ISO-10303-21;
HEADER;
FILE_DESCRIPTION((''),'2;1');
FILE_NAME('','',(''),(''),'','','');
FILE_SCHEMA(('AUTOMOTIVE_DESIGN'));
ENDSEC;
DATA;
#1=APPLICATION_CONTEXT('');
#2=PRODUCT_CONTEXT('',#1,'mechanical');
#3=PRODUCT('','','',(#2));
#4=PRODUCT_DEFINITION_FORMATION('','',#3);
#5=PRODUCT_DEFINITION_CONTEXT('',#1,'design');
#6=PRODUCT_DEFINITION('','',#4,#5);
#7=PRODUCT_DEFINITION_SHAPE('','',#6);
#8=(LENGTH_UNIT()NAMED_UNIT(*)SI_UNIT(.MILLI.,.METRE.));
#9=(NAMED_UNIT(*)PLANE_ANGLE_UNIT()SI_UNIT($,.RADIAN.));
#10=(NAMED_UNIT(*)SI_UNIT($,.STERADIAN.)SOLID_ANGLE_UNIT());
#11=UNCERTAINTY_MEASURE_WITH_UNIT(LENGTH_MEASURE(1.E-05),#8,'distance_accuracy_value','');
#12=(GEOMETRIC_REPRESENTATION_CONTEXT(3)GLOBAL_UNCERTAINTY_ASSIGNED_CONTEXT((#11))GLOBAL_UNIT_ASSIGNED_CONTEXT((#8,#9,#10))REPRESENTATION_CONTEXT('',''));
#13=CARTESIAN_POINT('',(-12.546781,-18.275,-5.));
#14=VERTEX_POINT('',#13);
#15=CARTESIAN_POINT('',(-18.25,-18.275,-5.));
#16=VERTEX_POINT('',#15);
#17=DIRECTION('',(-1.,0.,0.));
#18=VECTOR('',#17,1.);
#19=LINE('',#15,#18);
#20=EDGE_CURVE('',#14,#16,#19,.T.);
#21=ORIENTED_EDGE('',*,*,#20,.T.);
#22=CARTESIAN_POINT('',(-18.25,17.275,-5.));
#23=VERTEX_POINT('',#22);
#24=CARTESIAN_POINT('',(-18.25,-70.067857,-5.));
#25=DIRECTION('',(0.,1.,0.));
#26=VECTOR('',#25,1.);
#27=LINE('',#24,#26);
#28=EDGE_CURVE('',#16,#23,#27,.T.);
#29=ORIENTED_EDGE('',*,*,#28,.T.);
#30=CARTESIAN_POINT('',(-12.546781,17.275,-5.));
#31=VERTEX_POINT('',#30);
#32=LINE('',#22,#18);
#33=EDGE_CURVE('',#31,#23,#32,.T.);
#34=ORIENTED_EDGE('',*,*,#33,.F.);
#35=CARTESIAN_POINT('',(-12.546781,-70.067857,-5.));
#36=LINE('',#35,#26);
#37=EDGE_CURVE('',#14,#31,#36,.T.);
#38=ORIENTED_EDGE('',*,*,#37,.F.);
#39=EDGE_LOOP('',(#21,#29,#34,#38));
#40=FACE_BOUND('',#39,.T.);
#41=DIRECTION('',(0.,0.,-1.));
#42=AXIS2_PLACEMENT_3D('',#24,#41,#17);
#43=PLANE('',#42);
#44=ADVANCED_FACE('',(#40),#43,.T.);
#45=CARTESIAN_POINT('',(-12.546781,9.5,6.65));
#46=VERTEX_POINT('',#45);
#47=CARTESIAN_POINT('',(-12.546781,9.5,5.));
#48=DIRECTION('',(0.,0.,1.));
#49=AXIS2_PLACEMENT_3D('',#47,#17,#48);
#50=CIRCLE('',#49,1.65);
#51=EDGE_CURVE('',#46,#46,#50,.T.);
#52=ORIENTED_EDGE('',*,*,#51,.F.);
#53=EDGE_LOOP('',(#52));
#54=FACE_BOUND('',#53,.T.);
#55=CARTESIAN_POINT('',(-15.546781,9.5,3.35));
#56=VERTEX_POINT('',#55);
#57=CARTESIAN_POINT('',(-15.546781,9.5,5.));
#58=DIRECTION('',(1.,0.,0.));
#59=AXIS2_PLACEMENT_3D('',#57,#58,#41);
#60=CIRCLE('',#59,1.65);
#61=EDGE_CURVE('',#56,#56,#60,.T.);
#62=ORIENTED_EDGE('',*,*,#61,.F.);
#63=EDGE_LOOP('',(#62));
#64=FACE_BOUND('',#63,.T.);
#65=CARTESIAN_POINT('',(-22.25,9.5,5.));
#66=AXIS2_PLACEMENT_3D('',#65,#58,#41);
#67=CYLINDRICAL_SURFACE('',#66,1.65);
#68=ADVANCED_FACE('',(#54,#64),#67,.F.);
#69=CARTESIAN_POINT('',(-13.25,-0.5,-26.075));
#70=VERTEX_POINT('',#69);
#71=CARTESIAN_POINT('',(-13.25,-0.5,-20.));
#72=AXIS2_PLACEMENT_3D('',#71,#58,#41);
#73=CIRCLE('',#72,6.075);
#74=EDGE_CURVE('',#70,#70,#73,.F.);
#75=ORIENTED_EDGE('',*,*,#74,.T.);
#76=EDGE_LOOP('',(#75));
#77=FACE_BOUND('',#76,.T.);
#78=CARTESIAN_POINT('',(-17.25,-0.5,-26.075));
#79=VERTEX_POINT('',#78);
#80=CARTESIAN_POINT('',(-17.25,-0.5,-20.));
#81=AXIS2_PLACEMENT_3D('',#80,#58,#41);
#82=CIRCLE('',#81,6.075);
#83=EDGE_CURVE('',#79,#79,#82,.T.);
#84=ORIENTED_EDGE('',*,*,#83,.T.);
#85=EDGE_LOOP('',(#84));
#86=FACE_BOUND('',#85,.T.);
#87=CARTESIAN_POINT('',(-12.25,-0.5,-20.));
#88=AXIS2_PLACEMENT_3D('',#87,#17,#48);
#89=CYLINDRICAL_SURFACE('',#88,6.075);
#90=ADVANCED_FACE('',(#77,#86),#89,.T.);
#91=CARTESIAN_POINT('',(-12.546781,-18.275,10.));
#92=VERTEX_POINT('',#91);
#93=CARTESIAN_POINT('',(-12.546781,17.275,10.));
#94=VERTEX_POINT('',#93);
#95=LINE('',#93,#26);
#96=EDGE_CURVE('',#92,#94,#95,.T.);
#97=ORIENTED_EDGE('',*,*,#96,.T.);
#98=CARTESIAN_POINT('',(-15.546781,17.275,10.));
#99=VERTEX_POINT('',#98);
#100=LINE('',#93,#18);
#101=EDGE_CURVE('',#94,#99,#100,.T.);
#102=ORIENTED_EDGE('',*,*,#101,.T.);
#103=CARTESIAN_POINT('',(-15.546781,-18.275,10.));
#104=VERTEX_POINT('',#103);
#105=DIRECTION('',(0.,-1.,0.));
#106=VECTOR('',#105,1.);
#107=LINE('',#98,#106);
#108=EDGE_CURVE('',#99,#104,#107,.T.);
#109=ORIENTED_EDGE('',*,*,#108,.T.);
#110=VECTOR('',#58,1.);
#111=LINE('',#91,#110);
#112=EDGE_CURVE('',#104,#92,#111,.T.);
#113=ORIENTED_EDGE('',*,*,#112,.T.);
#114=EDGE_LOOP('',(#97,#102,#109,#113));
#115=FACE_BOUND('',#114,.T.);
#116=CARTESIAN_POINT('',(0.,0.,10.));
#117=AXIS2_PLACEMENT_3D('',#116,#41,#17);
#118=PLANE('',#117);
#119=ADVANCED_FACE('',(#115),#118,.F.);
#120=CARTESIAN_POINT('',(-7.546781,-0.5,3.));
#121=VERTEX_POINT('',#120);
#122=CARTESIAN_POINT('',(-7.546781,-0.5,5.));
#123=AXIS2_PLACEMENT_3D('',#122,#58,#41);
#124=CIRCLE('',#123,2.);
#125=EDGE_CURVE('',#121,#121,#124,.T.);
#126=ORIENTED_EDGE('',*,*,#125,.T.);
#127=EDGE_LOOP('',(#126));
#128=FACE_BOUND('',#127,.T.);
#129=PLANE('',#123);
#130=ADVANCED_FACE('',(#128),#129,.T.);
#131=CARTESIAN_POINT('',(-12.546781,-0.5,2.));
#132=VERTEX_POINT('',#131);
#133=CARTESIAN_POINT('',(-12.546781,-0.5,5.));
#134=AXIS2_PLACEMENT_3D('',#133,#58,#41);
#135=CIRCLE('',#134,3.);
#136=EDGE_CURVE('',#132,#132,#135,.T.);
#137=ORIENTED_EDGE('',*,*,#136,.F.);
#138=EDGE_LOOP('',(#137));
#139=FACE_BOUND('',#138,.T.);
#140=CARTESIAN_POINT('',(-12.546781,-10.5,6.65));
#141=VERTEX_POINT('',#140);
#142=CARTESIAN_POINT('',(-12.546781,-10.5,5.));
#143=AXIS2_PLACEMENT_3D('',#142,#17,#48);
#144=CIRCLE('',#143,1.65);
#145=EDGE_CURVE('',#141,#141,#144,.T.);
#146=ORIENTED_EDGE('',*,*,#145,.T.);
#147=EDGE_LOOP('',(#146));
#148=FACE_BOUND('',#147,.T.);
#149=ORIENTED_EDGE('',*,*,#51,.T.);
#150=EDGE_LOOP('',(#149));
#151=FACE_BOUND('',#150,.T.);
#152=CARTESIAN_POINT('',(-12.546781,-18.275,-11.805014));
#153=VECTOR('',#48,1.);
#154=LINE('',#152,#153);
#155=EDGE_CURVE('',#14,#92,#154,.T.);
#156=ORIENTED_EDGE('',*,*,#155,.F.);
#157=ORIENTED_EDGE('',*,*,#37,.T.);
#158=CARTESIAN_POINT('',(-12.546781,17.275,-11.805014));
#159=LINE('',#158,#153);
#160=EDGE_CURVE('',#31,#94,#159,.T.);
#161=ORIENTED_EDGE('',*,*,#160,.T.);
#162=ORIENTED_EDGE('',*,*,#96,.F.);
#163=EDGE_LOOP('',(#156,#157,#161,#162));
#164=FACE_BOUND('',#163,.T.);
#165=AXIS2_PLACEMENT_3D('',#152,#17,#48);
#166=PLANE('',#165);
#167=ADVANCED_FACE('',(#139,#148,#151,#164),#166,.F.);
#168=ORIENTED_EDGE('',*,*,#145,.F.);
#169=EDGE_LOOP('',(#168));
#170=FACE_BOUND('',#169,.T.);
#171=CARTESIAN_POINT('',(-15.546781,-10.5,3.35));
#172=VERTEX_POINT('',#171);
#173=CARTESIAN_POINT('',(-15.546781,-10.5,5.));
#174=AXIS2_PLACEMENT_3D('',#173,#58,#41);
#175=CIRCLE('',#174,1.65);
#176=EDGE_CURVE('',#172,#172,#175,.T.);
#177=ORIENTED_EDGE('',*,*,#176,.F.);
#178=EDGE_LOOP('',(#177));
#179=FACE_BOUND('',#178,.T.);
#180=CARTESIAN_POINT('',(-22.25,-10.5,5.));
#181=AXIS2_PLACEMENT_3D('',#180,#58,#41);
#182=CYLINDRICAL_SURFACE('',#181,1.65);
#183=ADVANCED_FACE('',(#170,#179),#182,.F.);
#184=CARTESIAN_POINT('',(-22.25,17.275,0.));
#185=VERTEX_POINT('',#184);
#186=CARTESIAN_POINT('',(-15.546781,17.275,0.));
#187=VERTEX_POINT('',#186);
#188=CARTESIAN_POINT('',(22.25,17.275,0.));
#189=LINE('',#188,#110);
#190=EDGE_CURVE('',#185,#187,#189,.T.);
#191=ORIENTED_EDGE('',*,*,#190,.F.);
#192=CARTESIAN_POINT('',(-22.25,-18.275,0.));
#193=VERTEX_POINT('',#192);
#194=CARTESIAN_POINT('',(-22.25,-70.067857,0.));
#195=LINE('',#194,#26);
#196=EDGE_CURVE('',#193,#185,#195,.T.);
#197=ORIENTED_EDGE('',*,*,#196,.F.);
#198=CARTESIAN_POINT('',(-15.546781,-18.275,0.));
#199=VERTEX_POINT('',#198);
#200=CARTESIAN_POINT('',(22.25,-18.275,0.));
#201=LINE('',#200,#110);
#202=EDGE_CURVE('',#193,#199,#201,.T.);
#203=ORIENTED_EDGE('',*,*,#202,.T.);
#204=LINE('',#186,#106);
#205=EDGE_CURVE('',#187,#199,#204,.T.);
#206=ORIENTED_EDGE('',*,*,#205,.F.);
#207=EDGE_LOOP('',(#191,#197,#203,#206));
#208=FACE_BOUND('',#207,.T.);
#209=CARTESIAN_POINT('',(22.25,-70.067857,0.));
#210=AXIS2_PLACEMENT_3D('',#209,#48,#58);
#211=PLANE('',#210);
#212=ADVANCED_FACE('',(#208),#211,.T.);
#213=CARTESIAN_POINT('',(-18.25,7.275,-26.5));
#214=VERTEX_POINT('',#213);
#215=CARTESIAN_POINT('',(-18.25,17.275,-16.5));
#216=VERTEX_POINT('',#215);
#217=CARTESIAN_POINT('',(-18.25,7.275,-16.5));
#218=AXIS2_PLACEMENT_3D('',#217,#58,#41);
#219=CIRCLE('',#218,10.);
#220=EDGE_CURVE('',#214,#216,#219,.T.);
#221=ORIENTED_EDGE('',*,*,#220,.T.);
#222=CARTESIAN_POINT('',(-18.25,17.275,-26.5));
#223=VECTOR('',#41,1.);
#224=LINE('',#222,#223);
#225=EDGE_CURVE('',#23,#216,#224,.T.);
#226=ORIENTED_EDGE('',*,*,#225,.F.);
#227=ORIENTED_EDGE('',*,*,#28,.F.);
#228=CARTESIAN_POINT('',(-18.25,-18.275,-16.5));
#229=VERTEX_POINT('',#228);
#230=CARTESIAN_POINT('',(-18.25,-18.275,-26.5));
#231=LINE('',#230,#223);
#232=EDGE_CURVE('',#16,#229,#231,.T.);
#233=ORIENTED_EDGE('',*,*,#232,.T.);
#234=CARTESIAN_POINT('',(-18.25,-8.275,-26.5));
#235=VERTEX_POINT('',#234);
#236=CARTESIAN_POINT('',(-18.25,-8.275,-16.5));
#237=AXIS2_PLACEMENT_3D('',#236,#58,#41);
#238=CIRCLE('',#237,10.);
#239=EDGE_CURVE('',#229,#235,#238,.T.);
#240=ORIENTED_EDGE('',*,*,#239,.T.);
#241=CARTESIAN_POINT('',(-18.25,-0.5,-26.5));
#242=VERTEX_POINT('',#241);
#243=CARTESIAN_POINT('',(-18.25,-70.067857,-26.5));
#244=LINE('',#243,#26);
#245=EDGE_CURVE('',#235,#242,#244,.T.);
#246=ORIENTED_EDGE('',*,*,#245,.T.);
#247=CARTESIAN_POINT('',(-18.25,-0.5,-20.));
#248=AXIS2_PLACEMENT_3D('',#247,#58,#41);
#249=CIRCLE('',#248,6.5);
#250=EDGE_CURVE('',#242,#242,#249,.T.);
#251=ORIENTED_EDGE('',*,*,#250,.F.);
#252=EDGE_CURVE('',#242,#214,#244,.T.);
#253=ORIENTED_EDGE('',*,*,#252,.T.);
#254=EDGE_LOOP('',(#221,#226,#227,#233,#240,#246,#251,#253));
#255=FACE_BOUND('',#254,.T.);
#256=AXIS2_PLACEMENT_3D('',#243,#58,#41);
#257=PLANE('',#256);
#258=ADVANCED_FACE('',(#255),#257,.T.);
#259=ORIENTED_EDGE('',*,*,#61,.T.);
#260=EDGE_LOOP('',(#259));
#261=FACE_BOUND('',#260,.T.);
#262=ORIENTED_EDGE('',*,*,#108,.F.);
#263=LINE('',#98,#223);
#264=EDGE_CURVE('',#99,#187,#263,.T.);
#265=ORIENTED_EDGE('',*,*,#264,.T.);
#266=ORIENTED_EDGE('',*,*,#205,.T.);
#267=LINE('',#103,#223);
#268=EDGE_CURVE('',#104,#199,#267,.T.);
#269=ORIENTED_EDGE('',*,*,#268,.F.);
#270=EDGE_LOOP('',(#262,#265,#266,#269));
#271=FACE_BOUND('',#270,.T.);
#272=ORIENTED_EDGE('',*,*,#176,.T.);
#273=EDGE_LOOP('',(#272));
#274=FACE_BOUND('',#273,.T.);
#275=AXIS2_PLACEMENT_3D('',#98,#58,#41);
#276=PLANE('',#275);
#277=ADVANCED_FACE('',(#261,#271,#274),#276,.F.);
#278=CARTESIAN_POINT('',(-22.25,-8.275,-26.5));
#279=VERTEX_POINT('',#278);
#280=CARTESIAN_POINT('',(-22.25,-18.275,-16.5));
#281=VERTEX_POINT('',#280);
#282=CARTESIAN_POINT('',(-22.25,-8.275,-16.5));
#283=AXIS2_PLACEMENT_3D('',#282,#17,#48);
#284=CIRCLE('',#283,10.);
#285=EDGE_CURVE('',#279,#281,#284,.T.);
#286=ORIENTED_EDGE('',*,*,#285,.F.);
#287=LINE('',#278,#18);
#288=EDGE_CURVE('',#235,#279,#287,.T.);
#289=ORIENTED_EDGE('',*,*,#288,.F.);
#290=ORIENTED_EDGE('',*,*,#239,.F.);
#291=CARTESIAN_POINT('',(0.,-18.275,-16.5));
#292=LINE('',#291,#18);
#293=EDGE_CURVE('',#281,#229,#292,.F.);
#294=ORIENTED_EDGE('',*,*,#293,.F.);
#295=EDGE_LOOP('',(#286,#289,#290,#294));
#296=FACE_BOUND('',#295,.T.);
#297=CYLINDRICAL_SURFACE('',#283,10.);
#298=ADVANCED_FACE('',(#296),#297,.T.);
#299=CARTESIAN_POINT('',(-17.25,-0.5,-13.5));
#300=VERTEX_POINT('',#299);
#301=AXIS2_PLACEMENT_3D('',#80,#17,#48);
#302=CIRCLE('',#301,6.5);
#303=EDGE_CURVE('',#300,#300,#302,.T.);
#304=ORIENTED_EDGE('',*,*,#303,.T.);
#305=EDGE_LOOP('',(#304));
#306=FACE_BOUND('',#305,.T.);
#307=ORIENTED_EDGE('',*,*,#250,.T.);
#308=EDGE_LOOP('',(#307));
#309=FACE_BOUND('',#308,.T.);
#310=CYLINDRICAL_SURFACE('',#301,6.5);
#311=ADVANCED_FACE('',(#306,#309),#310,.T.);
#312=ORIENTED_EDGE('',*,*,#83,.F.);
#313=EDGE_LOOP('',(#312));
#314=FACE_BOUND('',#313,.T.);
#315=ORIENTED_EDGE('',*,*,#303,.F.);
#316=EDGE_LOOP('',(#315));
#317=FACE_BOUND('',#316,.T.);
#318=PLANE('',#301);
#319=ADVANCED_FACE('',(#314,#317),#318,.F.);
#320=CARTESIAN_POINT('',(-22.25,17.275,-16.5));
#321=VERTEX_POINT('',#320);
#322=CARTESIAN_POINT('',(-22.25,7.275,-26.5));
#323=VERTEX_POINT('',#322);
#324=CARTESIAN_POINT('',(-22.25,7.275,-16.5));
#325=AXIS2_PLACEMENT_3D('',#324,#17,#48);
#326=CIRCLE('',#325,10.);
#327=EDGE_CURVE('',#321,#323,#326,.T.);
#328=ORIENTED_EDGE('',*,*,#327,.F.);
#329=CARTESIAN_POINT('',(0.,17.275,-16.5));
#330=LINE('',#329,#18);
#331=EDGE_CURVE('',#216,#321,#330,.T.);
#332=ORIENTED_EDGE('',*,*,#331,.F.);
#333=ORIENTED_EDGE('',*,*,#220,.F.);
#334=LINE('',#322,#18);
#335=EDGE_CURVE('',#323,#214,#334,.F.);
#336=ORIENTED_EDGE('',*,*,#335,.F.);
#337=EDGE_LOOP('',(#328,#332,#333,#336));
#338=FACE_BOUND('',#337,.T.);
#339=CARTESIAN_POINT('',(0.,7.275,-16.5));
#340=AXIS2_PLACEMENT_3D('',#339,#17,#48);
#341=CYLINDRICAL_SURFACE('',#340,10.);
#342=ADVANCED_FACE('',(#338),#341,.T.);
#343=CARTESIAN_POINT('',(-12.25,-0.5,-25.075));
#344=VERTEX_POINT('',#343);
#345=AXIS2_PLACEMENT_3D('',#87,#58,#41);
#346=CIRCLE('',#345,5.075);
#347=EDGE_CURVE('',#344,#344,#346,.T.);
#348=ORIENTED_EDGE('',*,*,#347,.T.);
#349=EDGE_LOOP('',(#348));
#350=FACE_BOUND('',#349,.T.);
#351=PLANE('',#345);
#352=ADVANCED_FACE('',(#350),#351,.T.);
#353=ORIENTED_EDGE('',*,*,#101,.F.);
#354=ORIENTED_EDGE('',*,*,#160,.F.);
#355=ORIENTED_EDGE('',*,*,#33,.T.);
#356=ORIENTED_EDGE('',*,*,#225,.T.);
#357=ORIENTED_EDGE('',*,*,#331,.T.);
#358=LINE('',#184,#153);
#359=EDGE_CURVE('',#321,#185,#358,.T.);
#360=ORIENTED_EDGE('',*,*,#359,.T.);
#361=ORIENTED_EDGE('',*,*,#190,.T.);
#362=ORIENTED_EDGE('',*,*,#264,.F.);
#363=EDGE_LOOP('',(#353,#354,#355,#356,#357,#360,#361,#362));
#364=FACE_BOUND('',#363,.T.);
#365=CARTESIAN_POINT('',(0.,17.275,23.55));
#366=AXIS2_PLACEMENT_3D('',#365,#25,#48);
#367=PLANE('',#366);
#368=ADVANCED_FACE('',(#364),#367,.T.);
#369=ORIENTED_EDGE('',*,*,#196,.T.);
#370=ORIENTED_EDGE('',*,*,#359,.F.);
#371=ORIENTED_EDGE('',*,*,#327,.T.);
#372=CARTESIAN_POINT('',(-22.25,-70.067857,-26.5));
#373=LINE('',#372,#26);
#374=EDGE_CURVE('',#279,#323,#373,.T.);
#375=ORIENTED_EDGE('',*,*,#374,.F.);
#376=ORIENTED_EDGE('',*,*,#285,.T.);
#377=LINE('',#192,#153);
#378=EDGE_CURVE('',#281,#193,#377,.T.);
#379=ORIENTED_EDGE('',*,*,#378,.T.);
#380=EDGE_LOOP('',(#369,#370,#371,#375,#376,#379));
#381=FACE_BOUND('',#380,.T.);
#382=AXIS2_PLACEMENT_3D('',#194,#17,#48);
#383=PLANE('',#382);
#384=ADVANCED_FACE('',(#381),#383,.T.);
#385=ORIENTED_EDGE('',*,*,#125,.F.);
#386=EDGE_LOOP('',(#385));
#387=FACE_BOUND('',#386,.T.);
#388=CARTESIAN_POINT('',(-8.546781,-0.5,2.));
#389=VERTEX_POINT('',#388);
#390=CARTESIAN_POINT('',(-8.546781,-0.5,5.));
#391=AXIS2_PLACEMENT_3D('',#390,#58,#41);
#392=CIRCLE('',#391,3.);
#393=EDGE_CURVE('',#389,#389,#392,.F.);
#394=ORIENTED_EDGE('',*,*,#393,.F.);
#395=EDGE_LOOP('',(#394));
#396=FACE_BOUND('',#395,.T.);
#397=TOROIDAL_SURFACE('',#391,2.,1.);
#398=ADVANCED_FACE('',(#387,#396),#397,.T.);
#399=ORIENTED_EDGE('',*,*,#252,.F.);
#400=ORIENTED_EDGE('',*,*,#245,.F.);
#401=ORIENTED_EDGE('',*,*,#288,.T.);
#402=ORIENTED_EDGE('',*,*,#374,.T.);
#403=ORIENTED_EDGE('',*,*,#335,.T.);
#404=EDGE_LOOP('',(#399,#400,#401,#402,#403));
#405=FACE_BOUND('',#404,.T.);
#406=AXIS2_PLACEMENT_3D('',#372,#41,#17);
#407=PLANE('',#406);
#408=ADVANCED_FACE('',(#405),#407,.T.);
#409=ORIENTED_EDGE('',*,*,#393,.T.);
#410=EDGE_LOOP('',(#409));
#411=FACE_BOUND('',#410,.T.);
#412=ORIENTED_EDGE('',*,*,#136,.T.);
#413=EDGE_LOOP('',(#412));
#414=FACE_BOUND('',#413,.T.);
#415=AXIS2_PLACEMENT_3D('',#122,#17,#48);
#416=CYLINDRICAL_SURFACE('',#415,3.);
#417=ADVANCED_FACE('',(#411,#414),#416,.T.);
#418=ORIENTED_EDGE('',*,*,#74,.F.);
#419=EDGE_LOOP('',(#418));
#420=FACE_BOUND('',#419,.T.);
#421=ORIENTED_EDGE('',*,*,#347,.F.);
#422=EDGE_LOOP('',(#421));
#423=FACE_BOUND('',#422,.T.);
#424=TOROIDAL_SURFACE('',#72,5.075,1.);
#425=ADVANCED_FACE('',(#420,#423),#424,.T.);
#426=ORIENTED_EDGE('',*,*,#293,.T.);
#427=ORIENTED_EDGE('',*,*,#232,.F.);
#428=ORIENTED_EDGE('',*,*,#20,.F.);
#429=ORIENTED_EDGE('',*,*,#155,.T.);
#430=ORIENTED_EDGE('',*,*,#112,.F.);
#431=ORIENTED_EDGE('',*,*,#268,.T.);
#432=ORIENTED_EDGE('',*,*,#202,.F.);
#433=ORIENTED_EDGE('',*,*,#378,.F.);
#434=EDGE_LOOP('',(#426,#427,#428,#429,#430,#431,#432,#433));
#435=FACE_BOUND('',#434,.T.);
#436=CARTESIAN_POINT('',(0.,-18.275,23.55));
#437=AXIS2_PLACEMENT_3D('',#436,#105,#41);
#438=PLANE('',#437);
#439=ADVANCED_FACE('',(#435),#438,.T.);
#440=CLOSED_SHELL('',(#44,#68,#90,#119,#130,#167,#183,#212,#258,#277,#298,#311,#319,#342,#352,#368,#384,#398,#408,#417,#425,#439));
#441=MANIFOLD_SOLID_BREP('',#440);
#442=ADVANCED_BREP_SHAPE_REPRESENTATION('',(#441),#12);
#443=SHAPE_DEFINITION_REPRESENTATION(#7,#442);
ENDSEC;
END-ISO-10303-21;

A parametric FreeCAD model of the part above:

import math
import FreeCAD as App
import Part
import Sketcher
Q = App.Units.Quantity


def edges_at(feature, points):
    """Names of the edges that pass closest to the given points."""
    edges = feature.Shape.Edges
    near = lambda p: min(range(len(edges)), key=lambda i: edges[i].distToShape(Part.Vertex(*p))[0])
    return sorted({f"Edge{near(p) + 1}" for p in points})


def add_polygon(sketch, points):
    """Adds a closed chain of lines whose ends are joined by coincident constraints."""
    first, n = sketch.GeometryCount, len(points)
    for a, b in zip(points, points[1:] + points[:1]):
        sketch.addGeometry(Part.LineSegment(App.Vector(*a, 0), App.Vector(*b, 0)), False)
    for i in range(n):
        sketch.addConstraint(Sketcher.Constraint("Coincident", first + i, 2, first + (i + 1) % n, 1))

doc = App.newDocument("Part")
body = doc.addObject("PartDesign::Body", "Body")

# Sketch on XY plane
sketch1 = body.newObject("Sketcher::SketchObject", "Sketch")
sketch1.AttachmentSupport = (doc.getObject("XY_Plane"), [""])
sketch1.MapMode = "FlatFace"
add_polygon(sketch1, [(-6, 7), (-6, -10), (6, -10), (6, 7)])  # lines 0-3
sketch1.addConstraint([
    Sketcher.Constraint("Vertical", 0),
    Sketcher.Constraint("Horizontal", 1),
    Sketcher.Constraint("Vertical", 2),
    Sketcher.Constraint("Horizontal", 3),
    Sketcher.Constraint("DistanceX", 1, 1, 1, 2, Q("12.46 mm")),
    Sketcher.Constraint("DistanceY", 0, 2, 0, 1, Q("17.25 mm")),
    Sketcher.Constraint("DistanceX", 0, 2, -1, 1, Q("6.23 mm")),
    Sketcher.Constraint("DistanceY", 0, 2, -1, 1, Q("9.975 mm")),
])
pad1 = body.newObject("PartDesign::Pad", "Pad")
pad1.Profile = sketch1
pad1.Length = 6
body2 = doc.addObject("PartDesign::Body", "Body001")

# Sketch on XZ plane
sketch2 = body2.newObject("Sketcher::SketchObject", "Sketch001")
sketch2.AttachmentSupport = (doc.getObject("XZ_Plane001"), [""])
sketch2.MapMode = "FlatFace"
sketch2.AttachmentOffset = App.Placement(App.Vector(0, 0, 9.975), App.Rotation())
sketch2.addGeometry([
    Part.Circle(App.Vector(0, 24, 0), App.Vector(0, 0, 1), 13),
    Part.Circle(App.Vector(0, 24, 0), App.Vector(0, 0, 1), 11),
], False)
sketch2.addConstraint([
    Sketcher.Constraint("Coincident", 1, 3, 0, 3),
    Sketcher.Constraint("PointOnObject", 0, 3, -2),
    Sketcher.Constraint("Diameter", 1, Q("22.3 mm")),
    Sketcher.Constraint("DistanceY", -1, 1, 0, 3, Q("23.55 mm")),
    Sketcher.Constraint("Diameter", 0, Q("25.093562 mm")),
])
pad2 = body2.newObject("PartDesign::Pad", "Pad001")
pad2.Profile = sketch2
pad2.Type = "TwoLengths"
pad2.Length = 8.3
pad2.Length2 = 17.25
body.AllowCompound = True
doc.recompute()

boolean = body.newObject("PartDesign::Boolean", "Boolean")
boolean.Type = "Fuse"
boolean.addObjects([body2])

# Sketch on XZ plane
sketch3 = body.newObject("Sketcher::SketchObject", "Sketch002")
sketch3.AttachmentSupport = (doc.getObject("XZ_Plane"), [""])
sketch3.MapMode = "FlatFace"
sketch3.AttachmentOffset = App.Placement(App.Vector(0, 0, -7.275), App.Rotation())
sketch3.addGeometry([
    Part.LineSegment(App.Vector(13, 24, 0), App.Vector(13, 0, 0)),  # 0
    Part.LineSegment(App.Vector(13, 0, 0), App.Vector(6, 0, 0)),  # 1
    Part.LineSegment(App.Vector(6, 0, 0), App.Vector(6, 30, 0)),  # 2
    Part.LineSegment(App.Vector(6, 30, 0), App.Vector(-6, 30, 0)),  # 3
    Part.LineSegment(App.Vector(-6, 30, 0), App.Vector(-6, 0, 0)),  # 4
    Part.LineSegment(App.Vector(-6, 0, 0), App.Vector(-13, 0, 0)),  # 5
    Part.LineSegment(App.Vector(-13, 0, 0), App.Vector(-13, 24, 0)),  # 6
    Part.ArcOfCircle(Part.Circle(App.Vector(0, 24, 0), App.Vector(0, 0, 1), 13), math.radians(0), math.radians(180)),  # 7
], False)
sketch3.addConstraint([
    Sketcher.Constraint("Coincident", 0, 2, 1, 1),
    Sketcher.Constraint("Coincident", 1, 2, 2, 1),
    Sketcher.Constraint("Coincident", 2, 2, 3, 1),
    Sketcher.Constraint("Coincident", 3, 2, 4, 1),
    Sketcher.Constraint("Coincident", 4, 2, 5, 1),
    Sketcher.Constraint("Coincident", 5, 2, 6, 1),
    Sketcher.Constraint("Tangent", 6, 2, 7, 2),
    Sketcher.Constraint("Tangent", 7, 1, 0, 1),
    Sketcher.Constraint("Vertical", 0),
    Sketcher.Constraint("Horizontal", 1),
    Sketcher.Constraint("Vertical", 2),
    Sketcher.Constraint("Horizontal", 3),
    Sketcher.Constraint("Vertical", 4),
    Sketcher.Constraint("Horizontal", 5),
    Sketcher.Constraint("Vertical", 6),
    Sketcher.Constraint("Symmetric", 1, 2, 4, 2, -1, 1),
    Sketcher.Constraint("Symmetric", 0, 2, 5, 2, -2),
    Sketcher.Constraint("DistanceY", 2, 1, 2, 2, Q("29.7 mm")),
    Sketcher.Constraint("DistanceX", 3, 2, 3, 1, Q("12.46 mm")),
    Sketcher.Constraint("DistanceY", 0, 2, 0, 1, Q("23.55 mm")),
    Sketcher.Constraint("Radius", 7, Q("12.546781 mm")),
])
pad3 = body.newObject("PartDesign::Pad", "Pad002")
pad3.Profile = sketch3
pad3.Length = 17.25

# Sketch on XZ plane
sketch4 = body.newObject("Sketcher::SketchObject", "Sketch003")
sketch4.AttachmentSupport = (doc.getObject("XZ_Plane"), [""])
sketch4.MapMode = "FlatFace"
sketch4.AttachmentOffset = App.Placement(App.Vector(0, 0, -7.275), App.Rotation())
sketch4.addGeometry([
    Part.Circle(App.Vector(0, 3.6, 0), App.Vector(0, 0, 1), 0.8),
    Part.Circle(App.Vector(0, 32.1, 0), App.Vector(0, 0, 1), 0.8),
], False)
sketch4.addConstraint([
    Sketcher.Constraint("Equal", 0, 1),
    Sketcher.Constraint("PointOnObject", 0, 3, -2),
    Sketcher.Constraint("PointOnObject", 1, 3, -2),
    Sketcher.Constraint("Diameter", 0, Q("1.5 mm")),
    Sketcher.Constraint("DistanceY", -1, 1, 0, 3, Q("3.6 mm")),
    Sketcher.Constraint("DistanceY", -1, 1, 1, 3, Q("32.1 mm")),
])
pocket1 = body.newObject("PartDesign::Pocket", "Pocket")
pocket1.Profile = sketch4
pocket1.Length = 5
pocket1.Reversed = True
doc.recompute()

chamfer = body.newObject("PartDesign::Chamfer", "Chamfer")
chamfer.Base = (pocket1, edges_at(pocket1, [(-0.75, 7.275, 3.6), (-0.75, 7.275, 32.1)]))
chamfer.ChamferType = "Two distances"
chamfer.Size = 0.5
chamfer.Size2 = 0.866025

# Sketch on XZ plane
sketch5 = body.newObject("Sketcher::SketchObject", "Sketch004")
sketch5.AttachmentSupport = (doc.getObject("XZ_Plane"), [""])
sketch5.MapMode = "FlatFace"
sketch5.AttachmentOffset = App.Placement(App.Vector(0, 0, -7.275), App.Rotation())
add_polygon(sketch5, [(-6, 6), (-6, 30), (6, 30), (6, 6)])  # lines 0-3
sketch5.addConstraint([
    Sketcher.Constraint("Vertical", 0),
    Sketcher.Constraint("Horizontal", 1),
    Sketcher.Constraint("Vertical", 2),
    Sketcher.Constraint("Horizontal", 3),
    Sketcher.Constraint("DistanceY", 0, 1, 0, 2, Q("23.7 mm")),
    Sketcher.Constraint("DistanceY", -1, 1, 2, 2, Q("6 mm")),
    Sketcher.Constraint("DistanceX", 1, 1, 1, 2, Q("12.46 mm")),
    Sketcher.Constraint("DistanceX", 0, 2, -1, 1, Q("6.23 mm")),
])
pocket2 = body.newObject("PartDesign::Pocket", "Pocket001")
pocket2.Profile = sketch5
pocket2.Length = 17.25
pocket2.Reversed = True

# Sketch on XZ plane
sketch6 = body.newObject("Sketcher::SketchObject", "Sketch005")
sketch6.AttachmentSupport = (doc.getObject("XZ_Plane"), [""])
sketch6.MapMode = "FlatFace"
sketch6.AttachmentOffset = App.Placement(App.Vector(0, 0, 18.275), App.Rotation())
sketch6.addGeometry([
    Part.LineSegment(App.Vector(-13, 24, 0), App.Vector(-13, 0, 0)),
    Part.LineSegment(App.Vector(-13, 0, 0), App.Vector(13, 0, 0)),
    Part.LineSegment(App.Vector(13, 0, 0), App.Vector(13, 24, 0)),
    Part.ArcOfCircle(Part.Circle(App.Vector(0, 24, 0), App.Vector(0, 0, 1), 13), math.radians(180), math.radians(360)),
], False)
sketch6.addConstraint([
    Sketcher.Constraint("Coincident", 0, 2, 1, 1),
    Sketcher.Constraint("Coincident", 1, 2, 2, 1),
    Sketcher.Constraint("Tangent", 2, 2, 3, 2),
    Sketcher.Constraint("Tangent", 3, 1, 0, 1),
    Sketcher.Constraint("Vertical", 0),
    Sketcher.Constraint("Horizontal", 1),
    Sketcher.Constraint("Vertical", 2),
    Sketcher.Constraint("Symmetric", 0, 2, 1, 2, -1, 1),
    Sketcher.Constraint("DistanceY", 0, 2, 0, 1, Q("23.55 mm")),
    Sketcher.Constraint("Radius", 3, Q("12.546781 mm")),
])
pad4 = body.newObject("PartDesign::Pad", "Pad003")
pad4.Profile = sketch6
pad4.Length = 8.3
pad4.Reversed = True

# Sketch on XZ plane
sketch7 = body.newObject("Sketcher::SketchObject", "Sketch006")
sketch7.AttachmentSupport = (doc.getObject("XZ_Plane"), [""])
sketch7.MapMode = "FlatFace"
sketch7.AttachmentOffset = App.Placement(App.Vector(0, 0, -7.275), App.Rotation())
sketch7.addGeometry([
    Part.LineSegment(App.Vector(12.5, 0, 0), App.Vector(-12.5, 0, 0)),  # 0
    Part.LineSegment(App.Vector(-12.5, 0, 0), App.Vector(-12.5, 23.6, 0)),  # 1
    Part.ArcOfCircle(Part.Circle(App.Vector(0, 23.6, 0), App.Vector(0, 0, 1), 12.5), math.radians(0), math.radians(180)),  # 2
    Part.LineSegment(App.Vector(12.5, 23.6, 0), App.Vector(12.5, 0, 0)),  # 3
    Part.LineSegment(App.Vector(-6.2, 0.8, 0), App.Vector(6.2, 0.8, 0)),  # 4
    Part.LineSegment(App.Vector(6.2, 0.8, 0), App.Vector(6.2, 33, 0)),  # 5
    Part.ArcOfCircle(Part.Circle(App.Vector(4.7, 33, 0), App.Vector(0, 0, 1), 1.5), math.radians(0), math.radians(90)),  # 6
    Part.LineSegment(App.Vector(4.7, 34.5, 0), App.Vector(-4.7, 34.5, 0)),  # 7
    Part.ArcOfCircle(Part.Circle(App.Vector(-4.7, 33, 0), App.Vector(0, 0, 1), 1.5), math.radians(90), math.radians(180)),  # 8
    Part.LineSegment(App.Vector(-6.2, 33, 0), App.Vector(-6.2, 0.8, 0)),  # 9
], False)
sketch7.addConstraint([
    Sketcher.Constraint("Coincident", 0, 2, 1, 1),
    Sketcher.Constraint("Tangent", 1, 2, 2, 2),
    Sketcher.Constraint("Tangent", 2, 1, 3, 1),
    Sketcher.Constraint("Coincident", 3, 2, 0, 1),
    Sketcher.Constraint("Coincident", 4, 2, 5, 1),
    Sketcher.Constraint("Tangent", 5, 2, 6, 1),
    Sketcher.Constraint("Tangent", 6, 2, 7, 1),
    Sketcher.Constraint("Tangent", 7, 2, 8, 1),
    Sketcher.Constraint("Tangent", 8, 2, 9, 1),
    Sketcher.Constraint("Coincident", 9, 2, 4, 1),
    Sketcher.Constraint("Horizontal", 0),
    Sketcher.Constraint("Vertical", 1),
    Sketcher.Constraint("Vertical", 3),
    Sketcher.Constraint("Horizontal", 4),
    Sketcher.Constraint("Vertical", 5),
    Sketcher.Constraint("Horizontal", 7),
    Sketcher.Constraint("Vertical", 9),
    Sketcher.Constraint("Equal", 6, 8),
    Sketcher.Constraint("Symmetric", 0, 2, 3, 2, -1, 1),
    Sketcher.Constraint("Radius", 6, Q("1.5 mm")),
    Sketcher.Constraint("DistanceY", 5, 1, 5, 2, Q("32.2 mm")),
    Sketcher.Constraint("DistanceY", -1, 1, 6, 3, Q("33 mm")),
    Sketcher.Constraint("DistanceX", 4, 1, 4, 2, Q("12.46 mm")),
    Sketcher.Constraint("DistanceY", 1, 1, 1, 2, Q("23.55 mm")),
    Sketcher.Constraint("DistanceX", -1, 1, 6, 3, Q("4.73 mm")),
    Sketcher.Constraint("Radius", 2, Q("12.546781 mm")),
])
pad5 = body.newObject("PartDesign::Pad", "Pad004")
pad5.Profile = sketch7
pad5.Length = 10
pad5.Reversed = True

# Sketch on XZ plane
sketch8 = body.newObject("Sketcher::SketchObject", "Sketch007")
sketch8.AttachmentSupport = (doc.getObject("XZ_Plane"), [""])
sketch8.MapMode = "FlatFace"
sketch8.AttachmentOffset = App.Placement(App.Vector(0, 0, 18.275), App.Rotation())
sketch8.addGeometry([
    Part.Circle(App.Vector(0, 24, 0), App.Vector(0, 0, 1), 11),
    Part.Circle(App.Vector(0, 24, 0), App.Vector(0, 0, 1), 7),
], False)
sketch8.addConstraint([
    Sketcher.Constraint("Coincident", 1, 3, 0, 3),
    Sketcher.Constraint("PointOnObject", 0, 3, -2),
    Sketcher.Constraint("Diameter", 0, Q("22.3 mm")),
    Sketcher.Constraint("Diameter", 1, Q("14.3 mm")),
    Sketcher.Constraint("DistanceY", -1, 1, 0, 3, Q("23.55 mm")),
])
pad6 = body.newObject("PartDesign::Pad", "Pad005")
pad6.Profile = sketch8
pad6.Length = 8.3
pad6.Reversed = True

# Sketch on XZ plane
sketch9 = body.newObject("Sketcher::SketchObject", "Sketch008")
sketch9.AttachmentSupport = (doc.getObject("XZ_Plane"), [""])
sketch9.MapMode = "FlatFace"
sketch9.AttachmentOffset = App.Placement(App.Vector(0, 0, 18.275), App.Rotation())
sketch9.addGeometry([
    Part.Circle(App.Vector(0, 24, 0), App.Vector(0, 0, 1), 10),
    Part.Circle(App.Vector(0, 24, 0), App.Vector(0, 0, 1), 7),
], False)
sketch9.addConstraint([
    Sketcher.Constraint("Coincident", 1, 3, 0, 3),
    Sketcher.Constraint("PointOnObject", 0, 3, -2),
    Sketcher.Constraint("Diameter", 0, Q("20.3 mm")),
    Sketcher.Constraint("Diameter", 1, Q("14.3 mm")),
    Sketcher.Constraint("DistanceY", -1, 1, 0, 3, Q("23.55 mm")),
])
pocket3 = body.newObject("PartDesign::Pocket", "Pocket002")
pocket3.Profile = sketch9
pocket3.Length = 1.3

# Sketch on XY plane
sketch10 = body.newObject("Sketcher::SketchObject", "Sketch009")
sketch10.AttachmentSupport = (doc.getObject("XY_Plane"), [""])
sketch10.MapMode = "FlatFace"
sketch10.AttachmentOffset = App.Placement(App.Vector(0, 0, 29.7), App.Rotation())
add_polygon(sketch10, [(-5, -10), (-5, -12), (5, -12), (5, -10)])  # lines 0-3
sketch10.addConstraint([
    Sketcher.Constraint("Vertical", 0),
    Sketcher.Constraint("Horizontal", 1),
    Sketcher.Constraint("Vertical", 2),
    Sketcher.Constraint("Horizontal", 3),
    Sketcher.Constraint("DistanceX", 1, 1, 1, 2, Q("10 mm")),
    Sketcher.Constraint("DistanceY", 0, 2, 0, 1, Q("2 mm")),
    Sketcher.Constraint("DistanceX", 0, 2, -1, 1, Q("5 mm")),
    Sketcher.Constraint("DistanceY", 0, 2, -1, 1, Q("11.975 mm")),
])
pocket4 = body.newObject("PartDesign::Pocket", "Pocket003")
pocket4.Profile = sketch10
pocket4.Length = 23.7

# Sketch on XZ plane
sketch11 = body.newObject("Sketcher::SketchObject", "Sketch010")
sketch11.AttachmentSupport = (doc.getObject("XZ_Plane"), [""])
sketch11.MapMode = "FlatFace"
sketch11.AttachmentOffset = App.Placement(App.Vector(0, 0, 18.275), App.Rotation())
add_polygon(sketch11, [(-6, 12), (-6, 6), (6, 6), (6, 12)])  # lines 0-3
sketch11.addConstraint([
    Sketcher.Constraint("Vertical", 0),
    Sketcher.Constraint("Horizontal", 1),
    Sketcher.Constraint("Vertical", 2),
    Sketcher.Constraint("Horizontal", 3),
    Sketcher.Constraint("DistanceY", 0, 2, 0, 1, Q("6 mm")),
    Sketcher.Constraint("DistanceY", -1, 1, 0, 2, Q("6 mm")),
    Sketcher.Constraint("DistanceX", 1, 1, 1, 2, Q("12.46 mm")),
    Sketcher.Constraint("DistanceX", 0, 2, -1, 1, Q("6.23 mm")),
])
pocket5 = body.newObject("PartDesign::Pocket", "Pocket004")
pocket5.Profile = sketch11
pocket5.Length = 8.3

# Sketch on XZ plane
sketch12 = body.newObject("Sketcher::SketchObject", "Sketch011")
sketch12.AttachmentSupport = (doc.getObject("XZ_Plane"), [""])
sketch12.MapMode = "FlatFace"
sketch12.AttachmentOffset = App.Placement(App.Vector(0, 0, -17.275), App.Rotation())
add_polygon(sketch12, [(22.2, 0), (22.2, -26.5), (18.2, -26.5), (18.2, -5), (-18.2, -5), (-18.2, -26.5), (-22.2, -26.5), (-22.2, 0)])  # lines 0-7
sketch12.addConstraint([
    Sketcher.Constraint("Vertical", 0),
    Sketcher.Constraint("Horizontal", 1),
    Sketcher.Constraint("Vertical", 2),
    Sketcher.Constraint("Horizontal", 3),
    Sketcher.Constraint("Vertical", 4),
    Sketcher.Constraint("Horizontal", 5),
    Sketcher.Constraint("Vertical", 6),
    Sketcher.Constraint("Horizontal", 7),
    Sketcher.Constraint("Symmetric", 6, 2, 7, 2, -1, 1),
    Sketcher.Constraint("Symmetric", 1, 2, 4, 2, -2),
    Sketcher.Constraint("DistanceX", 1, 2, 1, 1, Q("4 mm")),
    Sketcher.Constraint("DistanceX", 3, 2, 3, 1, Q("36.5 mm")),
    Sketcher.Constraint("DistanceY", 0, 2, 0, 1, Q("26.5 mm")),
    Sketcher.Constraint("DistanceY", 2, 1, 2, 2, Q("21.5 mm")),
])
pad7 = body.newObject("PartDesign::Pad", "Pad006")
pad7.Profile = sketch12
pad7.Length = 35.55

# Sketch on YZ plane
sketch13 = body.newObject("Sketcher::SketchObject", "Sketch012")
sketch13.AttachmentSupport = (doc.getObject("YZ_Plane"), [""])
sketch13.MapMode = "FlatFace"
sketch13.AttachmentOffset = App.Placement(App.Vector(0, 0, 18.25), App.Rotation())
add_polygon(sketch13, [(5, -26), (-6, -26), (-6, -5), (5, -5)])  # lines 0-3
sketch13.addConstraint([
    Sketcher.Constraint("Horizontal", 0),
    Sketcher.Constraint("Vertical", 1),
    Sketcher.Constraint("Horizontal", 2),
    Sketcher.Constraint("Vertical", 3),
    Sketcher.Constraint("DistanceY", 1, 1, 1, 2, Q("21.5 mm")),
    Sketcher.Constraint("DistanceY", 1, 2, -1, 1, Q("5 mm")),
    Sketcher.Constraint("DistanceX", 0, 2, 0, 1, Q("11.438293 mm")),
    Sketcher.Constraint("DistanceX", 0, 2, -1, 1, Q("6.219146 mm")),
])
pocket6 = body.newObject("PartDesign::Pocket", "Pocket005")
pocket6.Profile = sketch13
pocket6.Length = 2
pocket6.Reversed = True

# Sketch on YZ plane
sketch14 = body.newObject("Sketcher::SketchObject", "Sketch013")
sketch14.AttachmentSupport = (doc.getObject("YZ_Plane"), [""])
sketch14.MapMode = "FlatFace"
sketch14.AttachmentOffset = App.Placement(App.Vector(0, 0, 20.25), App.Rotation())
sketch14.addGeometry(Part.Circle(App.Vector(-0.5, -20, 0), App.Vector(0, 0, 1), 3.5), False)
sketch14.addConstraint([
    Sketcher.Constraint("Diameter", 0, Q("7 mm")),
    Sketcher.Constraint("DistanceY", 0, 3, -1, 1, Q("20 mm")),
    Sketcher.Constraint("DistanceX", 0, 3, -1, 1, Q("0.5 mm")),
])
pocket7 = body.newObject("PartDesign::Pocket", "Pocket006")
pocket7.Profile = sketch14
pocket7.Type = "ThroughAll"
pocket7.Midplane = True
doc.recompute()

fillet = body.newObject("PartDesign::Fillet", "Fillet")
fillet.Base = (pocket7, edges_at(pocket7, [
    (20.25, 17.275, -26.5),
    (-20.25, 17.275, -26.5),
    (-20.25, -18.275, -26.5),
    (20.25, -18.275, -26.5),
]))
fillet.Radius = 10

# Sketch on YZ plane
sketch15 = body.newObject("Sketcher::SketchObject", "Sketch014")
sketch15.AttachmentSupport = (doc.getObject("YZ_Plane"), [""])
sketch15.MapMode = "FlatFace"
sketch15.AttachmentOffset = App.Placement(App.Vector(0, 0, -22.25), App.Rotation())
sketch15.addGeometry(Part.Circle(App.Vector(0, -20, 0), App.Vector(0, 0, 1), 6), False)
sketch15.addConstraint([
    Sketcher.Constraint("Diameter", 0, Q("13 mm")),
    Sketcher.Constraint("DistanceY", 0, 3, -1, 1, Q("20 mm")),
    Sketcher.Constraint("DistanceX", 0, 3, -1, 1, Q("0.5 mm")),
])
pad8 = body.newObject("PartDesign::Pad", "Pad007")
pad8.Profile = sketch15
pad8.Length = 5

# Sketch on YZ plane
sketch16 = body.newObject("Sketcher::SketchObject", "Sketch015")
sketch16.AttachmentSupport = (doc.getObject("YZ_Plane"), [""])
sketch16.MapMode = "FlatFace"
sketch16.AttachmentOffset = App.Placement(App.Vector(0, 0, -17.25), App.Rotation())
sketch16.addGeometry(Part.Circle(App.Vector(0, -20, 0), App.Vector(0, 0, 1), 6), False)
sketch16.addConstraint([
    Sketcher.Constraint("Diameter", 0, Q("12.15 mm")),
    Sketcher.Constraint("DistanceY", 0, 3, -1, 1, Q("20 mm")),
    Sketcher.Constraint("DistanceX", 0, 3, -1, 1, Q("0.5 mm")),
])
pad9 = body.newObject("PartDesign::Pad", "Pad008")
pad9.Profile = sketch16
pad9.Length = 5
doc.recompute()

fillet2 = body.newObject("PartDesign::Fillet", "Fillet001")
fillet2.Base = (pad9, edges_at(pad9, [(-12.25, -0.5, -13.925)]))
fillet2.Radius = 1

# Sketch on YZ plane
sketch17 = body.newObject("Sketcher::SketchObject", "Sketch016")
sketch17.AttachmentSupport = (doc.getObject("YZ_Plane"), [""])
sketch17.MapMode = "FlatFace"
sketch17.AttachmentOffset = App.Placement(App.Vector(0, 0, 20.25), App.Rotation())
add_polygon(sketch17, [(2.9, -26.5), (2, -5), (5.2, -5), (5.2, -26.5)])  # lines 0-3
add_polygon(sketch17, [(-3, -5), (-3.9, -26.5), (-6.2, -26.5), (-6.2, -5)])  # lines 4-7
sketch17.addConstraint([
    Sketcher.Constraint("Horizontal", 1),
    Sketcher.Constraint("Vertical", 2),
    Sketcher.Constraint("Horizontal", 3),
    Sketcher.Constraint("Horizontal", 5),
    Sketcher.Constraint("Vertical", 6),
    Sketcher.Constraint("Horizontal", 7),
    Sketcher.Constraint("Horizontal", 3, 2, 4, 2),
    Sketcher.Constraint("Horizontal", 1, 2, 6, 2),
    Sketcher.Constraint("Equal", 3, 5),
    Sketcher.Constraint("Equal", 1, 7),
    Sketcher.Constraint("DistanceY", 2, 2, 2, 1, Q("21.5 mm")),
    Sketcher.Constraint("DistanceX", -1, 1, 0, 2, Q("2 mm")),
    Sketcher.Constraint("DistanceY", 0, 2, -1, 1, Q("5 mm")),
    Sketcher.Constraint("DistanceX", 7, 2, -1, 1, Q("3 mm")),
    Sketcher.Constraint("DistanceX", 4, 2, 3, 2, Q("6.8877 mm")),
    Sketcher.Constraint("DistanceX", 1, 1, 1, 2, Q("3.219146 mm")),
])
pad10 = body.newObject("PartDesign::Pad", "Pad009")
pad10.Profile = sketch17
pad10.Length = 2
pad10.Reversed = True

# Sketch on YZ plane
sketch18 = body.newObject("Sketcher::SketchObject", "Sketch017")
sketch18.AttachmentSupport = (doc.getObject("YZ_Plane"), [""])
sketch18.MapMode = "FlatFace"
sketch18.AttachmentOffset = App.Placement(App.Vector(0, 0, 22.25), App.Rotation())
sketch18.addGeometry(Part.Circle(App.Vector(-0.5, -10, 0), App.Vector(0, 0, 1), 0.8), False)
sketch18.addConstraint([
    Sketcher.Constraint("Diameter", 0, Q("1.5 mm")),
    Sketcher.Constraint("DistanceY", 0, 3, -1, 1, Q("10 mm")),
    Sketcher.Constraint("DistanceX", 0, 3, -1, 1, Q("0.5 mm")),
])
pocket8 = body.newObject("PartDesign::Pocket", "Pocket007")
pocket8.Profile = sketch18
pocket8.Type = "UpToFirst"

# Sketch on XZ plane
sketch19 = body.newObject("Sketcher::SketchObject", "Sketch018")
sketch19.AttachmentSupport = (doc.getObject("XZ_Plane"), [""])
sketch19.MapMode = "FlatFace"
sketch19.AttachmentOffset = App.Placement(App.Vector(0, 0, -17.275), App.Rotation())
add_polygon(sketch19, [(-13, -12), (-13, 43), (40, 43), (39, -31), (-9, -28)])  # lines 0-4
sketch19.addConstraint([
    Sketcher.Constraint("Vertical", 0),
    Sketcher.Constraint("Horizontal", 1),
    Sketcher.Constraint("Distance", 4, Q("17.037699 mm")),
    Sketcher.Constraint("DistanceX", 1, 1, 1, 2, Q("52.23587 mm")),
    Sketcher.Constraint("Distance", 2, Q("73.74049 mm")),
    Sketcher.Constraint("DistanceY", 0, 1, 0, 2, Q("54.561298 mm")),
    Sketcher.Constraint("DistanceX", 0, 2, -1, 1, Q("12.546781 mm")),
    Sketcher.Constraint("DistanceX", -1, 1, 2, 2, Q("38.703581 mm")),
    Sketcher.Constraint("DistanceY", 2, 2, -1, 1, Q("30.977621 mm")),
    Sketcher.Constraint("DistanceY", 3, 2, 4, 2, Q("16.57445 mm")),
])
pocket9 = body.newObject("PartDesign::Pocket", "Pocket008")
pocket9.Profile = sketch19
pocket9.Type = "ThroughAll"
pocket9.Reversed = True

# Sketch on XY plane
sketch20 = body.newObject("Sketcher::SketchObject", "Sketch019")
sketch20.AttachmentSupport = (doc.getObject("XY_Plane"), [""])
sketch20.MapMode = "FlatFace"
add_polygon(sketch20, [(-15.5, 17.3), (-15.5, -18.3), (-12.5, -18.3), (-12.5, 17.3)])  # lines 0-3
sketch20.addConstraint([
    Sketcher.Constraint("Vertical", 0),
    Sketcher.Constraint("Horizontal", 1),
    Sketcher.Constraint("Vertical", 2),
    Sketcher.Constraint("Horizontal", 3),
    Sketcher.Constraint("DistanceX", 1, 1, 1, 2, Q("3 mm")),
    Sketcher.Constraint("DistanceY", 0, 2, 0, 1, Q("35.55 mm")),
    Sketcher.Constraint("DistanceY", 0, 2, -1, 1, Q("18.275 mm")),
    Sketcher.Constraint("DistanceX", 0, 2, -1, 1, Q("15.546781 mm")),
])
pad11 = body.newObject("PartDesign::Pad", "Pad010")
pad11.Profile = sketch20
pad11.Length = 10

# Sketch on YZ plane
sketch21 = body.newObject("Sketcher::SketchObject", "Sketch020")
sketch21.AttachmentSupport = (doc.getObject("YZ_Plane"), [""])
sketch21.MapMode = "FlatFace"
sketch21.AttachmentOffset = App.Placement(App.Vector(0, 0, -12.546781), App.Rotation())
sketch21.addGeometry(Part.Circle(App.Vector(-0.5, 5, 0), App.Vector(0, 0, 1), 3), False)
sketch21.addConstraint([
    Sketcher.Constraint("Diameter", 0, Q("6 mm")),
    Sketcher.Constraint("DistanceY", -1, 1, 0, 3, Q("5 mm")),
    Sketcher.Constraint("DistanceX", 0, 3, -1, 1, Q("0.5 mm")),
])
pad12 = body.newObject("PartDesign::Pad", "Pad011")
pad12.Profile = sketch21
pad12.Length = 5
doc.recompute()

fillet3 = body.newObject("PartDesign::Fillet", "Fillet002")
fillet3.Base = (pad12, edges_at(pad12, [(-7.547, -0.5, 8)]))
fillet3.Radius = 1

# Sketch on YZ plane
sketch22 = body.newObject("Sketcher::SketchObject", "Sketch021")
sketch22.AttachmentSupport = (doc.getObject("YZ_Plane"), [""])
sketch22.MapMode = "FlatFace"
sketch22.addGeometry([
    Part.Circle(App.Vector(9.5, 5, 0), App.Vector(0, 0, 1), 1.6),
    Part.Circle(App.Vector(-10.5, 5, 0), App.Vector(0, 0, 1), 1.6),
], False)
sketch22.addConstraint([
    Sketcher.Constraint("Equal", 0, 1),
    Sketcher.Constraint("Horizontal", 0, 3, 1, 3),
    Sketcher.Constraint("Diameter", 0, Q("3.3 mm")),
    Sketcher.Constraint("DistanceY", -1, 1, 0, 3, Q("5 mm")),
    Sketcher.Constraint("DistanceX", 1, 3, 0, 3, Q("20 mm")),
    Sketcher.Constraint("DistanceX", -1, 1, 0, 3, Q("9.5 mm")),
])
pocket10 = body.newObject("PartDesign::Pocket", "Pocket009")
pocket10.Profile = sketch22
pocket10.Type = "ThroughAll"

doc.recompute()
